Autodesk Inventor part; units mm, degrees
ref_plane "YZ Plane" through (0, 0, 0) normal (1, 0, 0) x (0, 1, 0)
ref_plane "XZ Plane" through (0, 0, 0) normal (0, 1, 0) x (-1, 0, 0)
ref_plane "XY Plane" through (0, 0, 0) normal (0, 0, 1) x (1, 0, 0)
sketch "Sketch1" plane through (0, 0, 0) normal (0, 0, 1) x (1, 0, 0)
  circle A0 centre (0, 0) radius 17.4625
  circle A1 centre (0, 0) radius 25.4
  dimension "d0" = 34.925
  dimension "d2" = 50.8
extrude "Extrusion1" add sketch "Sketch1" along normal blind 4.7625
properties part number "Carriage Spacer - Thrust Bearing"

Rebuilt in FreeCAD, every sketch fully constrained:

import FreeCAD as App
import Part
import Sketcher
from FreeCAD import Vector
Q = App.Units.Quantity

doc = App.newDocument("Part")
body = doc.addObject("PartDesign::Body", "Body")

# Sketch on XY plane
sketch1 = body.newObject("Sketcher::SketchObject", "Sketch")
sketch1.AttachmentSupport = (doc.getObject("XY_Plane"), [""])
sketch1.MapMode = "FlatFace"
sketch1.addGeometry([
    Part.Circle(Vector(0, 0, 0), Vector(0, 0, 1), 25),
    Part.Circle(Vector(0, 0, 0), Vector(0, 0, 1), 17),
], False)
sketch1.addConstraint([
    Sketcher.Constraint("Coincident", 0, 3, -1, 1),
    Sketcher.Constraint("Coincident", 1, 3, -1, 1),
    Sketcher.Constraint("Diameter", 0, Q("2 in")),
    Sketcher.Constraint("Diameter", 1, Q("1.375 in")),
])
pad1 = body.newObject("PartDesign::Pad", "Pad")
pad1.Profile = sketch1
pad1.Length = Q("0.1875 in")

doc.recompute()
